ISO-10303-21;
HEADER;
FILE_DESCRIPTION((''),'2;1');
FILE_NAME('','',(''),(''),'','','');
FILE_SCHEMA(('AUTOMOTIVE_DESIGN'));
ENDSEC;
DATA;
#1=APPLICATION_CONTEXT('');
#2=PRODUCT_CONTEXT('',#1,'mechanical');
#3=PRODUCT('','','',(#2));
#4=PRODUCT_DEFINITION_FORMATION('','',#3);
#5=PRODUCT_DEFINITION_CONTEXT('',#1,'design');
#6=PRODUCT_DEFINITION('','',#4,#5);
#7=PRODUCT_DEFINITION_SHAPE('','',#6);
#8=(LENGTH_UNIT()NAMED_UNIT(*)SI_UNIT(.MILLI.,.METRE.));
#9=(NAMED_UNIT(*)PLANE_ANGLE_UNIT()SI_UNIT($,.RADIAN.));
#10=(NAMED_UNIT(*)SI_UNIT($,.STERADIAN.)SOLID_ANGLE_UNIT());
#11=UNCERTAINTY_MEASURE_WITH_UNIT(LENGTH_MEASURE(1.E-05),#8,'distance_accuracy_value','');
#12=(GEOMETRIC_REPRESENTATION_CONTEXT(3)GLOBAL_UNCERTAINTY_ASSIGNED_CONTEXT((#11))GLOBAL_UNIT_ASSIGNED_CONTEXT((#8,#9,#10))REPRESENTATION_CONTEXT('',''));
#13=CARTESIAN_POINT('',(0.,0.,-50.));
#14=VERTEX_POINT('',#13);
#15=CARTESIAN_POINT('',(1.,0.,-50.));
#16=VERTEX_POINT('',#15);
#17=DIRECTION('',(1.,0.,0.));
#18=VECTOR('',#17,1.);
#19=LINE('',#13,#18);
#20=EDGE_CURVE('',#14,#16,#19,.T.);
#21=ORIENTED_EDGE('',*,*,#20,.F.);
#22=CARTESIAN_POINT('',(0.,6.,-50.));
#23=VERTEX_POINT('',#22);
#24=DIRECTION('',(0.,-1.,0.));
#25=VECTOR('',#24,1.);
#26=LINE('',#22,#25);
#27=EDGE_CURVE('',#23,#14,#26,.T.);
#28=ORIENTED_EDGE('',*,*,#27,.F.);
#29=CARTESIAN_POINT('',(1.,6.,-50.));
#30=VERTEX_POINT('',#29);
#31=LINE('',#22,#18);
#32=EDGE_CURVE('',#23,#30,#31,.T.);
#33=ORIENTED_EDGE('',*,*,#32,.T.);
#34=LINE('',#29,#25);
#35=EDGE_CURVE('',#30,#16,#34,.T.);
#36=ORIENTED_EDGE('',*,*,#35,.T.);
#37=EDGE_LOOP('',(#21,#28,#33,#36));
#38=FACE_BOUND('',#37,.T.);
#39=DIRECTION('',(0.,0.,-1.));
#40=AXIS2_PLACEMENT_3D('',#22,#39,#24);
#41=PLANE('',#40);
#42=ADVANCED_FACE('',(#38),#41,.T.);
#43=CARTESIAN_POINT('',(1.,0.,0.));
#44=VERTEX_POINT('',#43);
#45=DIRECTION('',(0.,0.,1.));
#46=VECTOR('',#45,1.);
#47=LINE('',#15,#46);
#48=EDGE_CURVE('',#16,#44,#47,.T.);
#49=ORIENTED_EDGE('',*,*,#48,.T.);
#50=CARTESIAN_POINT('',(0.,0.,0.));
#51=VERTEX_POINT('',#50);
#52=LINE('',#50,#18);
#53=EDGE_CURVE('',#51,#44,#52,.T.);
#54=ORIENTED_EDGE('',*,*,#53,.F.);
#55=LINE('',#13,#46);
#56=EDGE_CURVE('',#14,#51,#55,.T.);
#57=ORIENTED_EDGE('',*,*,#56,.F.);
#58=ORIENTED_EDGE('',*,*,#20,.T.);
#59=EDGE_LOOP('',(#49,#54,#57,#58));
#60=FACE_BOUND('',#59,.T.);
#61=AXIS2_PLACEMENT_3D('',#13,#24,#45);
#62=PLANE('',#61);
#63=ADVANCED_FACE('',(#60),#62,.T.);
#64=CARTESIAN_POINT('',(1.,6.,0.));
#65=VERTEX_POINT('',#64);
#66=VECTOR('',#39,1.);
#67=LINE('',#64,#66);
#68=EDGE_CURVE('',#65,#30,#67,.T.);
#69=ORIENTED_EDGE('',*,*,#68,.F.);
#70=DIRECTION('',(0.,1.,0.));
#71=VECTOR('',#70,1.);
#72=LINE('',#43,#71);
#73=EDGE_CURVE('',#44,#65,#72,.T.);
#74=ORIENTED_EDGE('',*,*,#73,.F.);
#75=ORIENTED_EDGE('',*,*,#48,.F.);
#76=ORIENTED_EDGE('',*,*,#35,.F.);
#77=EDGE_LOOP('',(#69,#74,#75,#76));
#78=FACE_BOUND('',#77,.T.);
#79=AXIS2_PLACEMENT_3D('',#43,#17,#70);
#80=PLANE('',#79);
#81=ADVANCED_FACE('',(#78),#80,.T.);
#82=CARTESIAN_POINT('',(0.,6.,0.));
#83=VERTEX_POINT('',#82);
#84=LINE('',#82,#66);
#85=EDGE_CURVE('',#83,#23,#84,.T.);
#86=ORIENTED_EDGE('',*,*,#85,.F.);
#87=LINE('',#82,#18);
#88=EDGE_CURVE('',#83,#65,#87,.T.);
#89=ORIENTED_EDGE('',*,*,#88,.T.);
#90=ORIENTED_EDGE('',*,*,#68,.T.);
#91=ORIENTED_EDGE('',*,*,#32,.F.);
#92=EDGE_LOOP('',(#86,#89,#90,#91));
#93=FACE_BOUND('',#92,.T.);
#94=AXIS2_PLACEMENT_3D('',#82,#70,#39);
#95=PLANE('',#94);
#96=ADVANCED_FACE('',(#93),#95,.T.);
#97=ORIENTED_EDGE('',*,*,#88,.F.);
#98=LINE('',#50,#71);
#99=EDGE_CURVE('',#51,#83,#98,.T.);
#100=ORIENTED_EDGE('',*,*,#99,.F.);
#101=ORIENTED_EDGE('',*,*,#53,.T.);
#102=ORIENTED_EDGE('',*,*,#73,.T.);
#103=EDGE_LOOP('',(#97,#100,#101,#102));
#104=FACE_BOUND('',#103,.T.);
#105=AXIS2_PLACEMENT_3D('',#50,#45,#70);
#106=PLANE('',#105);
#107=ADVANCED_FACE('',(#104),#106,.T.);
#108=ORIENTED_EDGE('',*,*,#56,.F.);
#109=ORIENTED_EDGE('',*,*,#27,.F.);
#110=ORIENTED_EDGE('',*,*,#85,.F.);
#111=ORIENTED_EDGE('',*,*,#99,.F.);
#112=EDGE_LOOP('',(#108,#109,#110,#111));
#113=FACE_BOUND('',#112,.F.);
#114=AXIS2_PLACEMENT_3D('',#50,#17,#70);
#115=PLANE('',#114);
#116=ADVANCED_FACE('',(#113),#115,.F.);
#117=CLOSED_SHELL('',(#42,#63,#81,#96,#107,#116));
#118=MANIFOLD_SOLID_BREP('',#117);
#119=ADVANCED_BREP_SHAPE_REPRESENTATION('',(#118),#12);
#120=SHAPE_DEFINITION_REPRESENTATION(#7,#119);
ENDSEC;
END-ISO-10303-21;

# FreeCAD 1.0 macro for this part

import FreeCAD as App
import Part
import Sketcher


def add_polygon(sketch, points):
    """Adds a closed chain of lines whose ends are joined by coincident constraints."""
    first, n = sketch.GeometryCount, len(points)
    for a, b in zip(points, points[1:] + points[:1]):
        sketch.addGeometry(Part.LineSegment(App.Vector(*a, 0), App.Vector(*b, 0)), False)
    for i in range(n):
        sketch.addConstraint(Sketcher.Constraint("Coincident", first + i, 2, first + (i + 1) % n, 1))

doc = App.newDocument("Part")
body = doc.addObject("PartDesign::Body", "Body")

sketch1 = doc.addObject("Sketcher::SketchObject", "Sketch")
body.addObject(sketch1)
sketch1.AttachmentSupport = (doc.YZ_Plane, [""])
sketch1.MapMode = "FlatFace"
add_polygon(sketch1, [(6, 0), (0, 0), (0, -50), (6, -50)])
sketch1.addConstraint([
    Sketcher.Constraint("Horizontal", 0),
    Sketcher.Constraint("Vertical", 1),
    Sketcher.Constraint("Horizontal", 2),
    Sketcher.Constraint("Vertical", 3),
    Sketcher.Constraint("Coincident", 0, 2, -1, 1),
    Sketcher.Constraint("DistanceX", 0, 2, 0, 1, 6.0),
    Sketcher.Constraint("DistanceY", 1, 2, 1, 1, 50.0),
])
pad1 = doc.addObject("PartDesign::Pad", "Pad")
body.addObject(pad1)
pad1.Profile = sketch1
pad1.Length = 1

doc.recompute()
